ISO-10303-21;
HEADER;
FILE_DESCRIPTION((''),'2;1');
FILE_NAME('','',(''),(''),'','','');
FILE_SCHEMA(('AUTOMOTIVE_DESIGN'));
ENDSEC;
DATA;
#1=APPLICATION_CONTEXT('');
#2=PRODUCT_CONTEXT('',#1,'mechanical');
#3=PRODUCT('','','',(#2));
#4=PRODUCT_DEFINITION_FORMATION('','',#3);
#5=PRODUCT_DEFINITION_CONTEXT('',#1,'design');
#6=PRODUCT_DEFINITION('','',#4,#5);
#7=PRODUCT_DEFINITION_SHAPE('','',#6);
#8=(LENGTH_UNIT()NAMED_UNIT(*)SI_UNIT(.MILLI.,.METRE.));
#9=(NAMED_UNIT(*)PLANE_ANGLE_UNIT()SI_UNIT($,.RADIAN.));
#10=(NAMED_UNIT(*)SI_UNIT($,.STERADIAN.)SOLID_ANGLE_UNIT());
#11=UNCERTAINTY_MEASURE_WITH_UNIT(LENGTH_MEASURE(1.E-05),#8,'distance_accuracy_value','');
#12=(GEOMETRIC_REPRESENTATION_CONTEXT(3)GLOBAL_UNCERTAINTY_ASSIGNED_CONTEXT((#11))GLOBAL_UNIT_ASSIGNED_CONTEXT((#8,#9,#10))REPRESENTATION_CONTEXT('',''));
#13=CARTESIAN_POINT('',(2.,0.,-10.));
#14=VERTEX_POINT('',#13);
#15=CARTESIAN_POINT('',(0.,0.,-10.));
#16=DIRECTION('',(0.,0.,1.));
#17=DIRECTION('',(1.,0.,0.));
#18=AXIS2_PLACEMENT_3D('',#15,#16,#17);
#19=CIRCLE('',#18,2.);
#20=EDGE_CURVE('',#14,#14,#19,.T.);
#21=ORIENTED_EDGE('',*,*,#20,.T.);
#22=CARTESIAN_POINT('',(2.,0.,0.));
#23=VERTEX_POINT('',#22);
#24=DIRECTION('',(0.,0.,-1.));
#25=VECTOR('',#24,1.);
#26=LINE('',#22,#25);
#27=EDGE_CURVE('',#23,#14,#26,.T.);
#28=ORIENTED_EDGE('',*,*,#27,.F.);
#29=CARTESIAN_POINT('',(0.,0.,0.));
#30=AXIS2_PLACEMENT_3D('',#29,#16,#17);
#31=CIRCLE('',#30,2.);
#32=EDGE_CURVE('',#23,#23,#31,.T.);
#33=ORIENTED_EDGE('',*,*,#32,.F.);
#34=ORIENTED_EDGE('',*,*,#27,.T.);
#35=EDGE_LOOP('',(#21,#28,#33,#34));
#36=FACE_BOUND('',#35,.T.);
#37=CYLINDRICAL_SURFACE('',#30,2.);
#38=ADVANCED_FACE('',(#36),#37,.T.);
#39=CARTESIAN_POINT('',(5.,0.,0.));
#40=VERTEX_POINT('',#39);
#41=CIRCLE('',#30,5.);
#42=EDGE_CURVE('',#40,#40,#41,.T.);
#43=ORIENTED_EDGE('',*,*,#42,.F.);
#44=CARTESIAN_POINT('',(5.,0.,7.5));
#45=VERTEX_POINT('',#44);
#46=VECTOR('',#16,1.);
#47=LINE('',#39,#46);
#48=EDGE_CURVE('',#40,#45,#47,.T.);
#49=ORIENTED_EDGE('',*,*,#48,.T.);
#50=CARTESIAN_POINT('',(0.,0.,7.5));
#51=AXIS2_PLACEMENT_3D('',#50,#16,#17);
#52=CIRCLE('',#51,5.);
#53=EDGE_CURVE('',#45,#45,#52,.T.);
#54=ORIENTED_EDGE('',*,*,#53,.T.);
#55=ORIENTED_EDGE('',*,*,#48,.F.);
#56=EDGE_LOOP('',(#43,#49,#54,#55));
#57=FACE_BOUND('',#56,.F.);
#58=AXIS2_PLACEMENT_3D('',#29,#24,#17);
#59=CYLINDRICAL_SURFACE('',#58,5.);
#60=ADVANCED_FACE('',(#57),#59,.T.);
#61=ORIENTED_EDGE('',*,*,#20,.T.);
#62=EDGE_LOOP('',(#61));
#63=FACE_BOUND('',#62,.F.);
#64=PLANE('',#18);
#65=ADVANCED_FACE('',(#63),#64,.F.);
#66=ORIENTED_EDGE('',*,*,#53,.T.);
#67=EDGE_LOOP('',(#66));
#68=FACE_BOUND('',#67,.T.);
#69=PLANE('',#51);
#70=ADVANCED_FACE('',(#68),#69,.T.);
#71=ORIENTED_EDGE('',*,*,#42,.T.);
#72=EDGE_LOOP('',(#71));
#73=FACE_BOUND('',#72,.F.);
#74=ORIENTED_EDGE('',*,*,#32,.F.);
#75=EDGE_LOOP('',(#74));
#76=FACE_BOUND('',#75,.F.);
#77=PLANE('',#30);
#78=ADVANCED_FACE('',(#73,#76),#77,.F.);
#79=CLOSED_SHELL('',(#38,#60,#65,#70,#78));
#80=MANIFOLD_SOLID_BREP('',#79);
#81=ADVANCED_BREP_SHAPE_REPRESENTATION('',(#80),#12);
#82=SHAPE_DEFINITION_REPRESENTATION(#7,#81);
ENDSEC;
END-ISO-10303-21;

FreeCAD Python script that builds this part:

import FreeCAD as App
import Part
import Sketcher

doc = App.newDocument("Part")
params = doc.addObject("Spreadsheet::Sheet", "Params")
for row, (alias, value) in enumerate([
    ("sketch1_diameter", "4 mm"),
    ("pad1_length", "10 mm"),
    ("sketch2_diameter", "10 mm"),
    ("pad2_length", "7.5 mm"),
], start=1):
    params.set(f"A{row}", alias)
    params.set(f"B{row}", "=" + value)
    params.setAlias(f"B{row}", alias)

body = doc.addObject("PartDesign::Body", "Body")

sketch1 = body.newObject("Sketcher::SketchObject", "Sketch")
sketch1.AttachmentSupport = (doc.getObject("XY_Plane"), [""])
sketch1.MapMode = "FlatFace"
sketch1.addGeometry(Part.Circle(App.Vector(0, 0, 0), App.Vector(0, 0, 1), 2), False)
sketch1.addConstraint([
    Sketcher.Constraint("Coincident", 0, 3, -1, 1),
    Sketcher.Constraint("Diameter", 0, 4.0),
])
sketch1.setExpression("Constraints[1]", "Params.sketch1_diameter")
pad1 = body.newObject("PartDesign::Pad", "Pad")
pad1.Profile = sketch1
pad1.setExpression("Length", "Params.pad1_length")
pad1.Reversed = True

sketch2 = body.newObject("Sketcher::SketchObject", "Sketch001")
sketch2.AttachmentSupport = (doc.getObject("XY_Plane"), [""])
sketch2.MapMode = "FlatFace"
sketch2.addGeometry(Part.Circle(App.Vector(0, 0, 0), App.Vector(0, 0, 1), 5), False)
sketch2.addConstraint([
    Sketcher.Constraint("Coincident", 0, 3, -1, 1),
    Sketcher.Constraint("Diameter", 0, 10.0),
])
sketch2.setExpression("Constraints[1]", "Params.sketch2_diameter")
pad2 = body.newObject("PartDesign::Pad", "Pad001")
pad2.Profile = sketch2
pad2.setExpression("Length", "Params.pad2_length")

doc.recompute()
